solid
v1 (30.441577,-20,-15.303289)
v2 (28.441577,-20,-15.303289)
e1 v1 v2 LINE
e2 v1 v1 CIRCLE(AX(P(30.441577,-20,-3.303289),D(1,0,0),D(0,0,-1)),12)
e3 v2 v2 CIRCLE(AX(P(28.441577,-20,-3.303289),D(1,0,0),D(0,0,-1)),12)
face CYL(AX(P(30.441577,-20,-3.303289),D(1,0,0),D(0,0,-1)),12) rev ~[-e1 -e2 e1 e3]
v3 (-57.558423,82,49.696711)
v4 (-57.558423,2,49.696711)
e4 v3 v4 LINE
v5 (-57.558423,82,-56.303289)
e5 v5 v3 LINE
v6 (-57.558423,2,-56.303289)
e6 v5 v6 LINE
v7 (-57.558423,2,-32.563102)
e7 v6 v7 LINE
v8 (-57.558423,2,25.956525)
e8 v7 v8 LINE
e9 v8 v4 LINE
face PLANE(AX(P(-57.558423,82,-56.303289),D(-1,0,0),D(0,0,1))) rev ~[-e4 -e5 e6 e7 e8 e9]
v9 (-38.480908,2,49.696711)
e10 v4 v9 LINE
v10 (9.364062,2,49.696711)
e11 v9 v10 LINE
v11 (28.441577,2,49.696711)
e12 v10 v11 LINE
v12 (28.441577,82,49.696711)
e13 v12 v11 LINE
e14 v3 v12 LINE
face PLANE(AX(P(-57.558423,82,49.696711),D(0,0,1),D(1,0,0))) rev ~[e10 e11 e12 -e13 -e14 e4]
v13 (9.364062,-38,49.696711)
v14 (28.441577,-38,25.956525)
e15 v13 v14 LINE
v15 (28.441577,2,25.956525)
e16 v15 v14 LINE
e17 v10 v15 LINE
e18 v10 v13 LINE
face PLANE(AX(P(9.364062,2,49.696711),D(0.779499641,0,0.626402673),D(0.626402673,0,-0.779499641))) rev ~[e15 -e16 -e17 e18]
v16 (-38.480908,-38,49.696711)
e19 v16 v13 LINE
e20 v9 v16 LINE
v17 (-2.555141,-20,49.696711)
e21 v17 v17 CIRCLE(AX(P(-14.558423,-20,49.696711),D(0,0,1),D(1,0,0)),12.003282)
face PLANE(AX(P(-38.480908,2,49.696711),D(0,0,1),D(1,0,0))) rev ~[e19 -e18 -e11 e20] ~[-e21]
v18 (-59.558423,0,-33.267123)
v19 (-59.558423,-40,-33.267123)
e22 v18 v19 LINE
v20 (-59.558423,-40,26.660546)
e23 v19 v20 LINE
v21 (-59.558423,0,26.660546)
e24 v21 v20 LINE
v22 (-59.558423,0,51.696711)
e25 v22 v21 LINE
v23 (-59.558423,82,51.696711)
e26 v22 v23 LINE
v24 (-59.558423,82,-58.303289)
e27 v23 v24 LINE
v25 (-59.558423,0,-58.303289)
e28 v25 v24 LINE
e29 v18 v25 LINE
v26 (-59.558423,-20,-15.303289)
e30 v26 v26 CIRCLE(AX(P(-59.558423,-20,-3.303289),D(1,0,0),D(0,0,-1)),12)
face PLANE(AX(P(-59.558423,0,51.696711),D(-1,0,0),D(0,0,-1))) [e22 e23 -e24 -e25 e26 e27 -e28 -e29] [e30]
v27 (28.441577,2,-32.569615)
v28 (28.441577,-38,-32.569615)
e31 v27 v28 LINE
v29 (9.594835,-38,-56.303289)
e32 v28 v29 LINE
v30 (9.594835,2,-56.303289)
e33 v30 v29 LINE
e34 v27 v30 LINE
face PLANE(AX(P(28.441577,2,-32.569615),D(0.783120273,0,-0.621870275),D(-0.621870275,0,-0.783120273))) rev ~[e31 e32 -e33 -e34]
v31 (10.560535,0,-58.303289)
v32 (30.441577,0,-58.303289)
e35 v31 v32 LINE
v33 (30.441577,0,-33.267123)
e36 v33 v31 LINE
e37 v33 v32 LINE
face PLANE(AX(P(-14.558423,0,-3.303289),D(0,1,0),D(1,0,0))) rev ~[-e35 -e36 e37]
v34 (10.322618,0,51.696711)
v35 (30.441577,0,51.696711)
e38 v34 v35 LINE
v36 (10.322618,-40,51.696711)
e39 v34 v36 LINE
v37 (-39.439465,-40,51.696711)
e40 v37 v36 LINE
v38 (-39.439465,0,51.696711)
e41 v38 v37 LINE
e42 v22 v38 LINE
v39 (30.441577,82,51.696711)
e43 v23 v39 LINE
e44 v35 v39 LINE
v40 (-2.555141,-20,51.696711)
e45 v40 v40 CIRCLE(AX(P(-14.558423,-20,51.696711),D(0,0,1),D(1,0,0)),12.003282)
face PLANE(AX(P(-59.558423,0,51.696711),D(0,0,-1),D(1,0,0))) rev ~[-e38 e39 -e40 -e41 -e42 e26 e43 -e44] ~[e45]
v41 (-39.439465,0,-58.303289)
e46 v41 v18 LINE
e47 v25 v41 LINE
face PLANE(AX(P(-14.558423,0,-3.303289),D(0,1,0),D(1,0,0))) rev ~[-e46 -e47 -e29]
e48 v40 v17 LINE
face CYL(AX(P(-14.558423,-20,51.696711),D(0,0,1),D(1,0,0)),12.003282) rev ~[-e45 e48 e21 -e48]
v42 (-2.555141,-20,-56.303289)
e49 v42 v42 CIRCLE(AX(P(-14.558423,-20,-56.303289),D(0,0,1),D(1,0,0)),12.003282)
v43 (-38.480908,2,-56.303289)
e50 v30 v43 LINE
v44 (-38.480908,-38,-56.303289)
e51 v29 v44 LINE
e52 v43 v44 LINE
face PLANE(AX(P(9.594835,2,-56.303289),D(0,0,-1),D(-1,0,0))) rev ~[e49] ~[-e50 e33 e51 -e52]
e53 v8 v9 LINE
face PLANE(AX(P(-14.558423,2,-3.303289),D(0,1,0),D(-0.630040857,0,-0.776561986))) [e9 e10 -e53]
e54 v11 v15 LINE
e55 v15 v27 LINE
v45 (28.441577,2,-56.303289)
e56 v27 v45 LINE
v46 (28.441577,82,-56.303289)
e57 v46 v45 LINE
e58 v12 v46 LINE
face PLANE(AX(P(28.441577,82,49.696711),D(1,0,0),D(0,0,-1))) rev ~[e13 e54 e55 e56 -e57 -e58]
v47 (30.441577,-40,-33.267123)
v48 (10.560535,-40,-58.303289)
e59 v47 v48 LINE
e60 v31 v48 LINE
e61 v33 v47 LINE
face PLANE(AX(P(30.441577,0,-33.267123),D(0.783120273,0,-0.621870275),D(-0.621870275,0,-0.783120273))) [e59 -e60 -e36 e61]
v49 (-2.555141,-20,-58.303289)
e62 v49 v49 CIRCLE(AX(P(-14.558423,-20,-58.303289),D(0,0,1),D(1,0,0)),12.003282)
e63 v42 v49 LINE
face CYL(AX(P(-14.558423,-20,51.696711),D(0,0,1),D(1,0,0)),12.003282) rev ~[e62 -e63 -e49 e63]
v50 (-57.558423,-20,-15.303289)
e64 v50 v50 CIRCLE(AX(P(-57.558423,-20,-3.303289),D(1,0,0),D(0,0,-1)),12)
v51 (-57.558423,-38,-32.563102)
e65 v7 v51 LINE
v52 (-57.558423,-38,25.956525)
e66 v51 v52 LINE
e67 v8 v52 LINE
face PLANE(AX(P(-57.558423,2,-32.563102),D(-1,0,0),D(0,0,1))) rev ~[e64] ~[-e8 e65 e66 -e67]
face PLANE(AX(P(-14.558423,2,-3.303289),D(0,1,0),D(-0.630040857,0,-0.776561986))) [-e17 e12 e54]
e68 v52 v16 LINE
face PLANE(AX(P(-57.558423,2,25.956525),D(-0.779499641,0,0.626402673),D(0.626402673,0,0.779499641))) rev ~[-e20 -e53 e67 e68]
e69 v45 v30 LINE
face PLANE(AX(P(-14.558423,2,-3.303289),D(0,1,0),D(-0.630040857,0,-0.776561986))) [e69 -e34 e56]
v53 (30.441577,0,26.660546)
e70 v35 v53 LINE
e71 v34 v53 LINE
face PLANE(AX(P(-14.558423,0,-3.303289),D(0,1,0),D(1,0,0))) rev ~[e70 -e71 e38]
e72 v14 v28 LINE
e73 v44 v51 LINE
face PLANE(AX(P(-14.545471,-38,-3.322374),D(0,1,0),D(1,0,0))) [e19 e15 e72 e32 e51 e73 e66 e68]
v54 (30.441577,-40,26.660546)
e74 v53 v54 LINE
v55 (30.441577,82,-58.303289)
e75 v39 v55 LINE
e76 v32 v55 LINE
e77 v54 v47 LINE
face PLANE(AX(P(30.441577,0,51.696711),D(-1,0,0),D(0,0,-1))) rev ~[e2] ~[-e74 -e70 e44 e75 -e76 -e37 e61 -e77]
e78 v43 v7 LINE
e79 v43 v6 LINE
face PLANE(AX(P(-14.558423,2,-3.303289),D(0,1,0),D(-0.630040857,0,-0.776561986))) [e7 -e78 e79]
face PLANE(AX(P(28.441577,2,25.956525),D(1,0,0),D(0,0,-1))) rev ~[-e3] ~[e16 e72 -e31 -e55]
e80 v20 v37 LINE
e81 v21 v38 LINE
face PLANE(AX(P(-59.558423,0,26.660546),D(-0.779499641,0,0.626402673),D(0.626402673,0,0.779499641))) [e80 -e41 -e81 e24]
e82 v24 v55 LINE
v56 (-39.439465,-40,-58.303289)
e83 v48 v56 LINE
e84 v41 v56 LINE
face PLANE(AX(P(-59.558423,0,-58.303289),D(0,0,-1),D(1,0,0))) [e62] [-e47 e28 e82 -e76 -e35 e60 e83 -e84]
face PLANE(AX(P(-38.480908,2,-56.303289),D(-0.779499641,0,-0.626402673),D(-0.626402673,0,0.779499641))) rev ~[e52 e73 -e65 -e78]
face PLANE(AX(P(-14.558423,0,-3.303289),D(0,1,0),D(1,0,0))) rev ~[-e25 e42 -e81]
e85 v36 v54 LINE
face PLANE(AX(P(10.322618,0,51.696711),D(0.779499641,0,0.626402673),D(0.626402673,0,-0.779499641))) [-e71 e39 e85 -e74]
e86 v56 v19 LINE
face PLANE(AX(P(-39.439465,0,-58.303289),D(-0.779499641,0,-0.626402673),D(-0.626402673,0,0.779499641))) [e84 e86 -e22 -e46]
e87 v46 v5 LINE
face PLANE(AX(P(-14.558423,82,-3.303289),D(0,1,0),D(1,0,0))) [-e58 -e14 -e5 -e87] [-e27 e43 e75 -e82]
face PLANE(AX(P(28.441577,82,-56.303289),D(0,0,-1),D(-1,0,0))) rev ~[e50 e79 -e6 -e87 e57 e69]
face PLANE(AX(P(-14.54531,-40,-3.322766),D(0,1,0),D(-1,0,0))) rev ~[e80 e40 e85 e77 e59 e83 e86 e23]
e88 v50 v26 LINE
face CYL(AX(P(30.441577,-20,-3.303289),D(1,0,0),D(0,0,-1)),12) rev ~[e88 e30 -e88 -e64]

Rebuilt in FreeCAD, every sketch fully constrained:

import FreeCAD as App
import Part
import Sketcher

V = App.Vector

doc = App.newDocument("Part")
params = doc.addObject("Spreadsheet::Sheet", "Params")
for row, (alias, value) in enumerate([
    ("sketch1_width", "90 mm"),
    ("sketch1_height", "110 mm"),
    ("pad1_length", "82 mm"),
    ("sketch2_width", "86 mm"),
    ("sketch2_height", "106 mm"),
    ("pocket1_length", "80 mm"),
    ("sketch3_width", "50 mm"),
    ("pad2_length", "40 mm"),
    ("pocket2_length", "40 mm"),
    ("sketch5_diameter", "24 mm"),
    ("pocket3_length", "94 mm"),
    ("pocket4_length", "113 mm"),
], start=1):
    params.set(f"A{row}", alias)
    params.set(f"B{row}", "=" + value)
    params.setAlias(f"B{row}", alias)

body = doc.addObject("PartDesign::Body", "Body")

# Sketch on XZ plane
sketch1 = body.newObject("Sketcher::SketchObject", "Sketch")
sketch1.AttachmentSupport = (doc.getObject("XZ_Plane"), [""])
sketch1.MapMode = "FlatFace"
sketch1.addGeometry([
    Part.LineSegment(V(-60, -58, 0), V(-60, 52, 0)),
    Part.LineSegment(V(-60, 52, 0), V(30, 52, 0)),
    Part.LineSegment(V(30, 52, 0), V(30, -58, 0)),
    Part.LineSegment(V(30, -58, 0), V(-60, -58, 0)),
], False)
sketch1.addConstraint([
    Sketcher.Constraint("Coincident", 0, 2, 1, 1),
    Sketcher.Constraint("Coincident", 1, 2, 2, 1),
    Sketcher.Constraint("Coincident", 2, 2, 3, 1),
    Sketcher.Constraint("Coincident", 3, 2, 0, 1),
    Sketcher.Constraint("Vertical", 0),
    Sketcher.Constraint("Horizontal", 1),
    Sketcher.Constraint("Vertical", 2),
    Sketcher.Constraint("Horizontal", 3),
    Sketcher.Constraint("DistanceX", 1, 1, 1, 2, 90.0),
    Sketcher.Constraint("DistanceY", 0, 1, 0, 2, 110.0),
    Sketcher.Constraint("DistanceY", -1, 1, 0, 2, 51.696711),
    Sketcher.Constraint("DistanceX", 0, 2, -1, 1, 59.558423),
])
sketch1.setExpression("Constraints[8]", "Params.sketch1_width")
sketch1.setExpression("Constraints[9]", "Params.sketch1_height")
pad1 = body.newObject("PartDesign::Pad", "Pad")
pad1.Profile = sketch1
pad1.setExpression("Length", "Params.pad1_length")
pad1.Reversed = True

# Sketch on XZ plane
sketch2 = body.newObject("Sketcher::SketchObject", "Sketch001")
sketch2.AttachmentSupport = (doc.getObject("XZ_Plane"), [""])
sketch2.MapMode = "FlatFace"
sketch2.AttachmentOffset = App.Placement(V(0, 0, -82), App.Rotation())
sketch2.addGeometry([
    Part.LineSegment(V(28, 50, 0), V(28, -56, 0)),
    Part.LineSegment(V(28, -56, 0), V(-58, -56, 0)),
    Part.LineSegment(V(-58, -56, 0), V(-58, 50, 0)),
    Part.LineSegment(V(-58, 50, 0), V(28, 50, 0)),
], False)
sketch2.addConstraint([
    Sketcher.Constraint("Coincident", 0, 2, 1, 1),
    Sketcher.Constraint("Coincident", 1, 2, 2, 1),
    Sketcher.Constraint("Coincident", 2, 2, 3, 1),
    Sketcher.Constraint("Coincident", 3, 2, 0, 1),
    Sketcher.Constraint("Vertical", 0),
    Sketcher.Constraint("Horizontal", 1),
    Sketcher.Constraint("Vertical", 2),
    Sketcher.Constraint("Horizontal", 3),
    Sketcher.Constraint("DistanceX", 1, 2, 1, 1, 86.0),
    Sketcher.Constraint("DistanceY", 0, 2, 0, 1, 106.0),
    Sketcher.Constraint("DistanceY", 0, 2, -1, 1, 56.303288),
    Sketcher.Constraint("DistanceX", -1, 1, 0, 2, 28.441577),
])
sketch2.setExpression("Constraints[8]", "Params.sketch2_width")
sketch2.setExpression("Constraints[9]", "Params.sketch2_height")
pocket1 = body.newObject("PartDesign::Pocket", "Pocket")
pocket1.Profile = sketch2
pocket1.setExpression("Length", "Params.pocket1_length")
pocket1.Reversed = True

# Sketch on XZ plane
sketch3 = body.newObject("Sketcher::SketchObject", "Sketch002")
sketch3.AttachmentSupport = (doc.getObject("XZ_Plane"), [""])
sketch3.MapMode = "FlatFace"
sketch3.addGeometry([
    Part.LineSegment(V(30, -33, 0), V(30, 27, 0)),  # 0
    Part.LineSegment(V(30, 27, 0), V(10, 52, 0)),  # 1
    Part.LineSegment(V(10, 52, 0), V(-39, 52, 0)),  # 2
    Part.LineSegment(V(-39, 52, 0), V(-60, 27, 0)),  # 3
    Part.LineSegment(V(-60, 27, 0), V(-60, -33, 0)),  # 4
    Part.LineSegment(V(-60, -33, 0), V(-39, -58, 0)),  # 5
    Part.LineSegment(V(-39, -58, 0), V(11, -58, 0)),  # 6
    Part.LineSegment(V(11, -58, 0), V(30, -33, 0)),  # 7
], False)
sketch3.addConstraint([
    Sketcher.Constraint("Coincident", 0, 2, 1, 1),
    Sketcher.Constraint("Coincident", 1, 2, 2, 1),
    Sketcher.Constraint("Coincident", 2, 2, 3, 1),
    Sketcher.Constraint("Coincident", 3, 2, 4, 1),
    Sketcher.Constraint("Coincident", 4, 2, 5, 1),
    Sketcher.Constraint("Coincident", 5, 2, 6, 1),
    Sketcher.Constraint("Coincident", 6, 2, 7, 1),
    Sketcher.Constraint("Coincident", 7, 2, 0, 1),
    Sketcher.Constraint("Vertical", 0),
    Sketcher.Constraint("Horizontal", 2),
    Sketcher.Constraint("Vertical", 4),
    Sketcher.Constraint("Horizontal", 6),
    Sketcher.Constraint("Parallel", 1, 5),
    Sketcher.Constraint("Horizontal", 0, 2, 3, 2),
    Sketcher.Constraint("Horizontal", 4, 2, 7, 2),
    Sketcher.Constraint("Vertical", 2, 2, 5, 2),
    Sketcher.Constraint("Equal", 1, 3),
    Sketcher.Constraint("DistanceX", 6, 1, 6, 2, 50.0),
    Sketcher.Constraint("DistanceX", 3, 2, 0, 2, 90.0),
    Sketcher.Constraint("DistanceY", 5, 2, 2, 2, 110.0),
    Sketcher.Constraint("DistanceY", 0, 1, 0, 2, 59.92767),
    Sketcher.Constraint("Distance", 1, 32.118251),
    Sketcher.Constraint("DistanceX", -1, 1, 1, 2, 10.322618),
    Sketcher.Constraint("DistanceY", -1, 1, 1, 2, 51.696711),
])
sketch3.setExpression("Constraints[17]", "Params.sketch3_width")
pad2 = body.newObject("PartDesign::Pad", "Pad001")
pad2.Profile = sketch3
pad2.setExpression("Length", "Params.pad2_length")

# Sketch on XZ plane
sketch4 = body.newObject("Sketcher::SketchObject", "Sketch003")
sketch4.AttachmentSupport = (doc.getObject("XZ_Plane"), [""])
sketch4.MapMode = "FlatFace"
sketch4.AttachmentOffset = App.Placement(V(0, 0, -2), App.Rotation())
sketch4.addGeometry([
    Part.LineSegment(V(28, 26, 0), V(28, -33, 0)),  # 0
    Part.LineSegment(V(28, -33, 0), V(10, -56, 0)),  # 1
    Part.LineSegment(V(10, -56, 0), V(-38, -56, 0)),  # 2
    Part.LineSegment(V(-38, -56, 0), V(-58, -33, 0)),  # 3
    Part.LineSegment(V(-58, -33, 0), V(-58, 26, 0)),  # 4
    Part.LineSegment(V(-58, 26, 0), V(-38, 50, 0)),  # 5
    Part.LineSegment(V(-38, 50, 0), V(9, 50, 0)),  # 6
    Part.LineSegment(V(9, 50, 0), V(28, 26, 0)),  # 7
], False)
sketch4.addConstraint([
    Sketcher.Constraint("Coincident", 0, 2, 1, 1),
    Sketcher.Constraint("Coincident", 1, 2, 2, 1),
    Sketcher.Constraint("Coincident", 2, 2, 3, 1),
    Sketcher.Constraint("Coincident", 3, 2, 4, 1),
    Sketcher.Constraint("Coincident", 4, 2, 5, 1),
    Sketcher.Constraint("Coincident", 5, 2, 6, 1),
    Sketcher.Constraint("Coincident", 6, 2, 7, 1),
    Sketcher.Constraint("Coincident", 7, 2, 0, 1),
    Sketcher.Constraint("Vertical", 0),
    Sketcher.Constraint("Horizontal", 2),
    Sketcher.Constraint("Vertical", 4),
    Sketcher.Constraint("Horizontal", 6),
    Sketcher.Constraint("Parallel", 3, 7),
    Sketcher.Constraint("Horizontal", 4, 2, 7, 2),
    Sketcher.Constraint("Vertical", 2, 2, 5, 2),
    Sketcher.Constraint("Equal", 3, 5),
    Sketcher.Constraint("DistanceX", 3, 2, 0, 2, 86.0),
    Sketcher.Constraint("DistanceY", 2, 2, 5, 2, 106.0),
    Sketcher.Constraint("DistanceX", 6, 1, 6, 2, 47.84497),
    Sketcher.Constraint("DistanceY", 0, 2, 0, 1, 58.526141),
    Sketcher.Constraint("Distance", 1, 30.306549),
    Sketcher.Constraint("DistanceX", 2, 2, 2, 1, 48.075743),
    Sketcher.Constraint("DistanceY", 1, 2, -1, 1, 56.303289),
    Sketcher.Constraint("DistanceX", 2, 2, -1, 1, 38.480908),
])
pocket2 = body.newObject("PartDesign::Pocket", "Pocket001")
pocket2.Profile = sketch4
pocket2.setExpression("Length", "Params.pocket2_length")
pocket2.Reversed = True

# Sketch on YZ plane
sketch5 = body.newObject("Sketcher::SketchObject", "Sketch004")
sketch5.AttachmentSupport = (doc.getObject("YZ_Plane"), [""])
sketch5.MapMode = "FlatFace"
sketch5.AttachmentOffset = App.Placement(V(0, 0, 30.441577), App.Rotation())
sketch5.addGeometry(Part.Circle(V(-20, -3, 0), V(0, 0, 1), 12), False)
sketch5.addConstraint([
    Sketcher.Constraint("Diameter", 0, 24.0),
    Sketcher.Constraint("DistanceX", 0, 3, -1, 1, 20.0),
    Sketcher.Constraint("DistanceY", 0, 3, -1, 1, 3.303289),
])
sketch5.setExpression("Constraints[0]", "Params.sketch5_diameter")
pocket3 = body.newObject("PartDesign::Pocket", "Pocket002")
pocket3.Profile = sketch5
pocket3.setExpression("Length", "Params.pocket3_length")

# Sketch on XY plane
sketch6 = body.newObject("Sketcher::SketchObject", "Sketch005")
sketch6.AttachmentSupport = (doc.getObject("XY_Plane"), [""])
sketch6.MapMode = "FlatFace"
sketch6.AttachmentOffset = App.Placement(V(0, 0, 51.696711), App.Rotation())
sketch6.addGeometry(Part.Circle(V(-15, -20, 0), V(0, 0, 1), 12), False)
sketch6.addConstraint([
    Sketcher.Constraint("DistanceY", 0, 3, -1, 1, 20.0),
    Sketcher.Constraint("Diameter", 0, 24.006564),
    Sketcher.Constraint("DistanceX", 0, 3, -1, 1, 14.558423),
])
pocket4 = body.newObject("PartDesign::Pocket", "Pocket003")
pocket4.Profile = sketch6
pocket4.setExpression("Length", "Params.pocket4_length")

doc.recompute()
